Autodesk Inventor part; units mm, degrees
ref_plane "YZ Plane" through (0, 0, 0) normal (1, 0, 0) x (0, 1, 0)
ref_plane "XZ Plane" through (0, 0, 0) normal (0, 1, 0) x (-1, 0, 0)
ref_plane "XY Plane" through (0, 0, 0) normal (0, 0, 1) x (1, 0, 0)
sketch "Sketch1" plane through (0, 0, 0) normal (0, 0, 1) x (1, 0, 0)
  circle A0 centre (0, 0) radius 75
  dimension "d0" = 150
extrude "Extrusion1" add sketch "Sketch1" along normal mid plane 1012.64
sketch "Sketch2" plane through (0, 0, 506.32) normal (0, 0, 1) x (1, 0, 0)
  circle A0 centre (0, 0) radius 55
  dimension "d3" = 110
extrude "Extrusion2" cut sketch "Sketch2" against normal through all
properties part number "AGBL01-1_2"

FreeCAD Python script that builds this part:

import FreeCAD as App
import Part
import Sketcher
Q = App.Units.Quantity

doc = App.newDocument("Part")
body = doc.addObject("PartDesign::Body", "Body")

sketch1 = body.newObject("Sketcher::SketchObject", "Sketch")
sketch1.AttachmentSupport = (doc.getObject("XY_Plane"), [""])
sketch1.MapMode = "FlatFace"
sketch1.addGeometry(Part.Circle(App.Vector(0, 0, 0), App.Vector(0, 0, 1), 75), False)
sketch1.addConstraint(Sketcher.Constraint("Coincident", 0, 3, -1, 1))
sketch1.addConstraint(Sketcher.Constraint("Diameter", 0, Q("150 mm")))
pad1 = body.newObject("PartDesign::Pad", "Pad")
pad1.Profile = sketch1
pad1.Length = 1012.64
pad1.Midplane = True

sketch2 = body.newObject("Sketcher::SketchObject", "Sketch001")
sketch2.AttachmentSupport = (doc.getObject("XY_Plane"), [""])
sketch2.MapMode = "FlatFace"
sketch2.AttachmentOffset = App.Placement(App.Vector(0, 0, 506.32), App.Rotation())
sketch2.addGeometry(Part.Circle(App.Vector(0, 0, 0), App.Vector(0, 0, 1), 55), False)
sketch2.addConstraint(Sketcher.Constraint("Coincident", 0, 3, -1, 1))
sketch2.addConstraint(Sketcher.Constraint("Diameter", 0, Q("110 mm")))
pocket1 = body.newObject("PartDesign::Pocket", "Pocket")
pocket1.Profile = sketch2
pocket1.Type = "ThroughAll"

doc.recompute()
